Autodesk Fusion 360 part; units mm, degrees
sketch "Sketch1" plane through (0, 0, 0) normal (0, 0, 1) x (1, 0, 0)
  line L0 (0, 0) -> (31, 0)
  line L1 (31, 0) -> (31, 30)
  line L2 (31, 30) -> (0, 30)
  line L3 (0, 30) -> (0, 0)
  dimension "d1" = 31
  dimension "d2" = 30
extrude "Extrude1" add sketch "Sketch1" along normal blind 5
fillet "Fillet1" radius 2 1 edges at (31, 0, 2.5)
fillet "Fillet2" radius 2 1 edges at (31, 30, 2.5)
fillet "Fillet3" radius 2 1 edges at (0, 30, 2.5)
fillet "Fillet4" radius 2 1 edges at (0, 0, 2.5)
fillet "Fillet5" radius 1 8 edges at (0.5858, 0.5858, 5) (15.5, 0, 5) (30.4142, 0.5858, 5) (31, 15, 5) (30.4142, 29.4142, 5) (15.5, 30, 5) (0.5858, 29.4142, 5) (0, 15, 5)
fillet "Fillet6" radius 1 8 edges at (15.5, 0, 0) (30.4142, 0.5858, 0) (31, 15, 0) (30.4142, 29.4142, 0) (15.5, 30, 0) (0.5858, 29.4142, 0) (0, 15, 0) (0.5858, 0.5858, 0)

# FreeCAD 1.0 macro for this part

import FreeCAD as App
import Part
import Sketcher

V = App.Vector
Q = App.Units.Quantity


def edges_at(feature, points):
    """Names of the edges that pass closest to the given points."""
    edges = feature.Shape.Edges
    near = lambda p: min(range(len(edges)), key=lambda i: edges[i].distToShape(Part.Vertex(*p))[0])
    return sorted({f"Edge{near(p) + 1}" for p in points})

doc = App.newDocument("Part")
body = doc.addObject("PartDesign::Body", "Body")

# Sketch on XY plane
sketch1 = body.newObject("Sketcher::SketchObject", "Sketch")
sketch1.AttachmentSupport = (doc.getObject("XY_Plane"), [""])
sketch1.MapMode = "FlatFace"
sketch1.addGeometry(Part.LineSegment(V(0, 30, 0), V(0, 0, 0)), False)
sketch1.addGeometry(Part.LineSegment(V(0, 0, 0), V(31, 0, 0)), False)
sketch1.addGeometry(Part.LineSegment(V(31, 0, 0), V(31, 30, 0)), False)
sketch1.addGeometry(Part.LineSegment(V(31, 30, 0), V(0, 30, 0)), False)
sketch1.addConstraint(Sketcher.Constraint("Coincident", 0, 2, 1, 1))
sketch1.addConstraint(Sketcher.Constraint("Coincident", 1, 2, 2, 1))
sketch1.addConstraint(Sketcher.Constraint("Coincident", 2, 2, 3, 1))
sketch1.addConstraint(Sketcher.Constraint("Coincident", 3, 2, 0, 1))
sketch1.addConstraint(Sketcher.Constraint("Vertical", 0))
sketch1.addConstraint(Sketcher.Constraint("Horizontal", 1))
sketch1.addConstraint(Sketcher.Constraint("Vertical", 2))
sketch1.addConstraint(Sketcher.Constraint("Horizontal", 3))
sketch1.addConstraint(Sketcher.Constraint("Coincident", 0, 2, -1, 1))
sketch1.addConstraint(Sketcher.Constraint("DistanceX", 1, 1, 1, 2, Q("31 mm")))
sketch1.addConstraint(Sketcher.Constraint("DistanceY", 0, 2, 0, 1, Q("30 mm")))
pad1 = body.newObject("PartDesign::Pad", "Pad")
pad1.Profile = sketch1
pad1.Length = 5
doc.recompute()

fillet = body.newObject("PartDesign::Fillet", "Fillet")
fillet.Base = (pad1, edges_at(pad1, [(31, 0, 2.5)]))
fillet.Radius = 2
doc.recompute()

fillet2 = body.newObject("PartDesign::Fillet", "Fillet001")
fillet2.Base = (fillet, edges_at(fillet, [(31, 30, 2.5)]))
fillet2.Radius = 2
doc.recompute()

fillet3 = body.newObject("PartDesign::Fillet", "Fillet002")
fillet3.Base = (fillet2, edges_at(fillet2, [(0, 30, 2.5)]))
fillet3.Radius = 2
doc.recompute()

fillet4 = body.newObject("PartDesign::Fillet", "Fillet003")
fillet4.Base = (fillet3, edges_at(fillet3, [(0, 0, 2.5)]))
fillet4.Radius = 2
doc.recompute()

fillet5 = body.newObject("PartDesign::Fillet", "Fillet004")
fillet5.Base = (fillet4, edges_at(fillet4, [
    (0.586, 0.586, 5),
    (15.5, 0, 5),
    (30.414, 0.586, 5),
    (31, 15, 5),
    (30.414, 29.414, 5),
    (15.5, 30, 5),
    (0.586, 29.414, 5),
    (0, 15, 5),
]))
fillet5.Radius = 1
doc.recompute()

fillet6 = body.newObject("PartDesign::Fillet", "Fillet005")
fillet6.Base = (fillet5, edges_at(fillet5, [
    (15.5, 0, 0),
    (30.414, 0.586, 0),
    (31, 15, 0),
    (30.414, 29.414, 0),
    (15.5, 30, 0),
    (0.586, 29.414, 0),
    (0, 15, 0),
    (0.586, 0.586, 0),
]))
fillet6.Radius = 1

doc.recompute()
